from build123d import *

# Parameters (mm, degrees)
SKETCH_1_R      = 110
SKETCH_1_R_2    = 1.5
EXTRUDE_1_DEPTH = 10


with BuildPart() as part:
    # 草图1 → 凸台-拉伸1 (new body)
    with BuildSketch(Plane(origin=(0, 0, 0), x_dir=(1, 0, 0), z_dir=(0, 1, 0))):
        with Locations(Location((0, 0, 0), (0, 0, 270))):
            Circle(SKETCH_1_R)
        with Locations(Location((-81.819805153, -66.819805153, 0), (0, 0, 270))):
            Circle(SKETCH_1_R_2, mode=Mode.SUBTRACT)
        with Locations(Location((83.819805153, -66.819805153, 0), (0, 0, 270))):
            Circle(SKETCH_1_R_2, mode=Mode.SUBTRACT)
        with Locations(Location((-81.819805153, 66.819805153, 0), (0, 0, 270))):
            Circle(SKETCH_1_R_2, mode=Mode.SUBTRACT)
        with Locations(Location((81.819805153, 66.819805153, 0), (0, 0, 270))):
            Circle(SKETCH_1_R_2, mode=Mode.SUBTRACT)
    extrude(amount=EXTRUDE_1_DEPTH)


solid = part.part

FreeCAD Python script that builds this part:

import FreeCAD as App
import Part
import Sketcher

V = App.Vector
Q = App.Units.Quantity

doc = App.newDocument("Part")
params = doc.addObject("Spreadsheet::Sheet", "Params")
for row, (alias, value) in enumerate([
    ("sketch1_diameter", "220 mm"),
    ("sketch1_diameter2", "3 mm"),
    ("pad1_length", "10 mm"),
], start=1):
    params.set(f"A{row}", alias)
    params.set(f"B{row}", "=" + value)
    params.setAlias(f"B{row}", alias)

body = doc.addObject("PartDesign::Body", "Body")

# Sketch on XZ plane
sketch1 = body.newObject("Sketcher::SketchObject", "Sketch")
sketch1.AttachmentSupport = (doc.getObject("XZ_Plane"), [""])
sketch1.MapMode = "FlatFace"
sketch1.addGeometry([
    Part.Circle(V(0, 0, 0), V(0, 0, 1), 110),  # 0
    Part.Circle(V(-81.819805, -66.819805, 0), V(0, 0, 1), 1.5),  # 1
    Part.Circle(V(-81.819805, 66.819805, 0), V(0, 0, 1), 1.5),  # 2
    Part.Circle(V(81.819805, -66.819805, 0), V(0, 0, 1), 1.5),  # 3
    Part.Circle(V(83.819805, 66.819805, 0), V(0, 0, 1), 1.5),  # 4
], False)
sketch1.addConstraint([
    Sketcher.Constraint("Coincident", 0, 3, -1, 1),
    Sketcher.Constraint("Equal", 1, 2),
    Sketcher.Constraint("Equal", 2, 3),
    Sketcher.Constraint("Equal", 3, 4),
    Sketcher.Constraint("Symmetric", 2, 3, 3, 3, -1, 1),
    Sketcher.Constraint("Symmetric", 1, 3, 3, 3, -2),
    Sketcher.Constraint("Horizontal", 2, 3, 4, 3),
    Sketcher.Constraint("Diameter", 0, Q("220 mm")),
    Sketcher.Constraint("Diameter", 1, Q("3 mm")),
    Sketcher.Constraint("DistanceX", 3, 3, 4, 3, Q("2 mm")),
    Sketcher.Constraint("DistanceY", 1, 3, 2, 3, Q("133.63961 mm")),
    Sketcher.Constraint("DistanceX", 1, 3, 3, 3, Q("163.63961 mm")),
])
sketch1.setExpression("Constraints[7]", "Params.sketch1_diameter")
sketch1.setExpression("Constraints[8]", "Params.sketch1_diameter2")
pad1 = body.newObject("PartDesign::Pad", "Pad")
pad1.Profile = sketch1
pad1.setExpression("Length", "Params.pad1_length")
pad1.Reversed = True

doc.recompute()
